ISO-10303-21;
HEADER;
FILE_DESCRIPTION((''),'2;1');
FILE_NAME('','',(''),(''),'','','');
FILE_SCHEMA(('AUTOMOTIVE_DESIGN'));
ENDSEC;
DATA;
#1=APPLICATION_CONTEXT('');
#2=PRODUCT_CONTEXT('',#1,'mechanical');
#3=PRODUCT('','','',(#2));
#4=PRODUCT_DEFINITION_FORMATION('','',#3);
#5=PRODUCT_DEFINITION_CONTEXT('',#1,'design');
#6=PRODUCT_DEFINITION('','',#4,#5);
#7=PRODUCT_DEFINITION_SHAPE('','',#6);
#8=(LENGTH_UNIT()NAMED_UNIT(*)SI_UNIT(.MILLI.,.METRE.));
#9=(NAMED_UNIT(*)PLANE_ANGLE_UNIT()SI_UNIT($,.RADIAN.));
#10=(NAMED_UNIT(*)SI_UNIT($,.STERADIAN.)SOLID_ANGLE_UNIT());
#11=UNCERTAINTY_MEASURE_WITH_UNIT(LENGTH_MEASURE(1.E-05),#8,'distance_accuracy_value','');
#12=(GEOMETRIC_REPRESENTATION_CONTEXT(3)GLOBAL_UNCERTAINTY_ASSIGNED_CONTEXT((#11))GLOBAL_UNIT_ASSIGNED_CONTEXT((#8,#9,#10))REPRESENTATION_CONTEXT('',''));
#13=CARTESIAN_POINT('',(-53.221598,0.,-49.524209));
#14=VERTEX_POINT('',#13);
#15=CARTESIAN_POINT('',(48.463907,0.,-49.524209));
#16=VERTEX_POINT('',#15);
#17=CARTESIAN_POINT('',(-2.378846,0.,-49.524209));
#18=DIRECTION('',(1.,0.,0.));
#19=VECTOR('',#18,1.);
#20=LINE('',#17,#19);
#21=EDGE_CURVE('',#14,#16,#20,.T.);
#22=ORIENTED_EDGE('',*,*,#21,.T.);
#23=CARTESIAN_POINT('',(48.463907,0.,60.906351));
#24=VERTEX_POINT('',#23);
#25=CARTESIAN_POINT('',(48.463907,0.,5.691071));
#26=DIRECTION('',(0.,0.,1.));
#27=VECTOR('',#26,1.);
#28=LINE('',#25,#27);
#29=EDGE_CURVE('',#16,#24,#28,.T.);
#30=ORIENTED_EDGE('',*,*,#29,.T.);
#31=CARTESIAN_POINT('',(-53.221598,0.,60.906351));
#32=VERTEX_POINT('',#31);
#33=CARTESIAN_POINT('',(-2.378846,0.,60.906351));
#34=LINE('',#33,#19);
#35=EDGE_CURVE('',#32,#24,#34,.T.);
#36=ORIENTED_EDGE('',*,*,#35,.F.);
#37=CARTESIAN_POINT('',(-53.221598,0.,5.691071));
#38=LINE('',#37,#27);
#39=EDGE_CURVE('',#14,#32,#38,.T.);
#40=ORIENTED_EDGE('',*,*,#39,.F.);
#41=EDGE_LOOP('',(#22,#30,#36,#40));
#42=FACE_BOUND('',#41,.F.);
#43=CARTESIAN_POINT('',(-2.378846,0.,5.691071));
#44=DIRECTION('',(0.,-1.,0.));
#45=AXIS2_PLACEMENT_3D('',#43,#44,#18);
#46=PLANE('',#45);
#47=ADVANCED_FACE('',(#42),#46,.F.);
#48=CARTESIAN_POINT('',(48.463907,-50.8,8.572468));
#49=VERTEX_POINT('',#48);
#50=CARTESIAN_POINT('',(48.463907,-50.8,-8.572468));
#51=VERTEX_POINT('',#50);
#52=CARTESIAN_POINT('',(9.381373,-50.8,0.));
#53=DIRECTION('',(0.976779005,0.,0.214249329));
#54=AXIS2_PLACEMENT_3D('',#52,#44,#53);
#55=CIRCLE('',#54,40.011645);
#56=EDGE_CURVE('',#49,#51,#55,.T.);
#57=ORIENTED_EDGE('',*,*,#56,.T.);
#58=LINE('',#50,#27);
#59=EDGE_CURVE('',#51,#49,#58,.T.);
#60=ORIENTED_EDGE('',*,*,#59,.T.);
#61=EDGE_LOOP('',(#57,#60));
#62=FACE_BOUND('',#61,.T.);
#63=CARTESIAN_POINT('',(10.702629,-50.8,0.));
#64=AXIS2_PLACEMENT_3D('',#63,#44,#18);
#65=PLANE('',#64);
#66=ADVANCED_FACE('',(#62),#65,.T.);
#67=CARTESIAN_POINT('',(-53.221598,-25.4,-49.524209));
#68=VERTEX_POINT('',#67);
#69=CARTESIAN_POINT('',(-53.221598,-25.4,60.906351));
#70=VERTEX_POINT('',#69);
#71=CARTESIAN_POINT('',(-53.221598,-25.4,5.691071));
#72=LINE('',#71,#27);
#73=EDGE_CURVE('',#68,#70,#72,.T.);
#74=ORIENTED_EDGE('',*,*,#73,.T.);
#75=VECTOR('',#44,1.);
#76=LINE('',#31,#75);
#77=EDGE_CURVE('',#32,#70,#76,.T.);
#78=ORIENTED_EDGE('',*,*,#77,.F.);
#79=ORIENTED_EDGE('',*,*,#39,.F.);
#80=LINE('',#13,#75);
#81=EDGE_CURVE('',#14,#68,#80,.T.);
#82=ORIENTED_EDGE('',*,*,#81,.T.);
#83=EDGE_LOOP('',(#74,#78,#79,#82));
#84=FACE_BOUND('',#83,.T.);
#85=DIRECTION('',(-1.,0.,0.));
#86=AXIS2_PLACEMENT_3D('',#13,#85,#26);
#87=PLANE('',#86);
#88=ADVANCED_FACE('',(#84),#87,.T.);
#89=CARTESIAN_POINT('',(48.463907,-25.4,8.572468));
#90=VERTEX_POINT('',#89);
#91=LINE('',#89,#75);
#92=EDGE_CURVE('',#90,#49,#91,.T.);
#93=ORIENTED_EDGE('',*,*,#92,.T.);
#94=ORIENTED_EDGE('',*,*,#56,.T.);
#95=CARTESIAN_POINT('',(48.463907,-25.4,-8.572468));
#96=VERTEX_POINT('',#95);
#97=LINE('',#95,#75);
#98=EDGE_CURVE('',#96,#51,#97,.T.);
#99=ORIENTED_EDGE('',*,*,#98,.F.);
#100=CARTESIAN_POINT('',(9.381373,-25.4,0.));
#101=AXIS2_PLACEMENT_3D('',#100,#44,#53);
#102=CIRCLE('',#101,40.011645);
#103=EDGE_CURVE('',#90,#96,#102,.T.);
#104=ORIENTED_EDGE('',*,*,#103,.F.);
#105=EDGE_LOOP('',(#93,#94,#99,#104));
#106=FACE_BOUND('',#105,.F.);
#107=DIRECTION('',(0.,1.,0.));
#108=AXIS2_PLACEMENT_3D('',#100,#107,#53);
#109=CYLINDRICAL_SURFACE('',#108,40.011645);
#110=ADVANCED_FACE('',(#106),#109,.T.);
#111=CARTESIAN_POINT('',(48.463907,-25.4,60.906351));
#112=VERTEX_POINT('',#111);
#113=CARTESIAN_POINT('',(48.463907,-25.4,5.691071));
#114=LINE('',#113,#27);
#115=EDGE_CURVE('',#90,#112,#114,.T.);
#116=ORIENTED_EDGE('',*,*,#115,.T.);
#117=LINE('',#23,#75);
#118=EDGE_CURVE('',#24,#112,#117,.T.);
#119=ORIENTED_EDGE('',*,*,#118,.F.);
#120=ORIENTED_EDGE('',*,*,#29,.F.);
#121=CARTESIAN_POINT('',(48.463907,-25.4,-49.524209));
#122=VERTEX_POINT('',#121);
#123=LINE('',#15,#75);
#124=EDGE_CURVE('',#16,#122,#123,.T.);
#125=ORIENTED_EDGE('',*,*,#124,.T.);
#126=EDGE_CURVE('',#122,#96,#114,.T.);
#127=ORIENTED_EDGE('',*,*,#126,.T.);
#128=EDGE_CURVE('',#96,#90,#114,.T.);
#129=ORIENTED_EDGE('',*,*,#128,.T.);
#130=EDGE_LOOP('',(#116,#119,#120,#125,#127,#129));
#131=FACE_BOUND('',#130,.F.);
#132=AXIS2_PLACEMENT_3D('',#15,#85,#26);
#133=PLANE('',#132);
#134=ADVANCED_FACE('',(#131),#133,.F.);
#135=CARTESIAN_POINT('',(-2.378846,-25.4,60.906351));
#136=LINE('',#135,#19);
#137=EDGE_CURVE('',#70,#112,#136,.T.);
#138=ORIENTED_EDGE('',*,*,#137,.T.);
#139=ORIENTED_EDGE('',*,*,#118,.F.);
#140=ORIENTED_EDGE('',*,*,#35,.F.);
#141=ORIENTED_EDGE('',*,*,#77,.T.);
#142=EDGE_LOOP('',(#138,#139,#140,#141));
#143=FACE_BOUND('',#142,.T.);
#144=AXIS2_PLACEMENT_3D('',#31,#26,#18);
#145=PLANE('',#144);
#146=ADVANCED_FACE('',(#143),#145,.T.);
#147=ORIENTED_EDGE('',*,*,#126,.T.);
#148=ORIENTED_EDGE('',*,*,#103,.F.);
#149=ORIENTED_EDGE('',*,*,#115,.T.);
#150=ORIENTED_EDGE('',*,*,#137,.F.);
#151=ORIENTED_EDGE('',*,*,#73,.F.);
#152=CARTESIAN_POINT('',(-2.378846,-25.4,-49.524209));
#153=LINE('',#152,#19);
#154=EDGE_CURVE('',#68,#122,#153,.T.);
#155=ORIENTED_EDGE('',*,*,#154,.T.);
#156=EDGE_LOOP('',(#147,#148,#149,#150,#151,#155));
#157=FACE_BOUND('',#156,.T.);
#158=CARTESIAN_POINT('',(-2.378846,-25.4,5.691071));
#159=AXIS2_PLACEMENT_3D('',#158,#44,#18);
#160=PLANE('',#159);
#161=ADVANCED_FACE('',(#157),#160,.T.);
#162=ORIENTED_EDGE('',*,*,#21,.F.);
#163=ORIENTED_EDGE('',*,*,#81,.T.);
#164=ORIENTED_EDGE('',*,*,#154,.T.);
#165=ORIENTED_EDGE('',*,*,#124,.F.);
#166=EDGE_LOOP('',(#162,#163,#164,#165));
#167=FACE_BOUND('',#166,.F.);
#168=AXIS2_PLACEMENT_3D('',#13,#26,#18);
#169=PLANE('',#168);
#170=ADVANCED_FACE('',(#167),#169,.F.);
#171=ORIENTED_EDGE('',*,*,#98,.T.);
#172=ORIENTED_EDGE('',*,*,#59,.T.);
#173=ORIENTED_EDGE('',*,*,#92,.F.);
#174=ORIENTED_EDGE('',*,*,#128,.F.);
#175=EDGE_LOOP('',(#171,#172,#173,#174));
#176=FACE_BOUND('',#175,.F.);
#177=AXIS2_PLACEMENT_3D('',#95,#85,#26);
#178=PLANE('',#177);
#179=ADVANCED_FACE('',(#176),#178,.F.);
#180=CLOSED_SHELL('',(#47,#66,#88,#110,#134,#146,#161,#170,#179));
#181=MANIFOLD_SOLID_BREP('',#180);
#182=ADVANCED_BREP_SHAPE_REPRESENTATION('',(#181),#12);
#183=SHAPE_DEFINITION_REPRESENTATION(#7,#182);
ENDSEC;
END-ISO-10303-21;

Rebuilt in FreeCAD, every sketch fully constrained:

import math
import FreeCAD as App
import Part
import Sketcher
from FreeCAD import Vector


def add_polygon(sketch, points):
    """Adds a closed chain of lines whose ends are joined by coincident constraints."""
    first, n = sketch.GeometryCount, len(points)
    for a, b in zip(points, points[1:] + points[:1]):
        sketch.addGeometry(Part.LineSegment(App.Vector(*a, 0), App.Vector(*b, 0)), False)
    for i in range(n):
        sketch.addConstraint(Sketcher.Constraint("Coincident", first + i, 2, first + (i + 1) % n, 1))

doc = App.newDocument("Part")
params = doc.addObject("Spreadsheet::Sheet", "Params")
for row, (alias, value) in enumerate([
    ("pad1_length", "1 in"),
    ("pad2_length", "1 in"),
], start=1):
    params.set(f"A{row}", alias)
    params.set(f"B{row}", "=" + value)
    params.setAlias(f"B{row}", alias)

body = doc.addObject("PartDesign::Body", "Body")

# Sketch on XZ plane
sketch1 = doc.addObject("Sketcher::SketchObject", "Sketch")
body.addObject(sketch1)
sketch1.AttachmentSupport = (doc.XZ_Plane, [""])
sketch1.MapMode = "FlatFace"
add_polygon(sketch1, [(-53, 61), (-53, -50), (48, -50), (48, 61)])  # lines 0-3
sketch1.addConstraint(Sketcher.Constraint("Vertical", 0))
sketch1.addConstraint(Sketcher.Constraint("Horizontal", 1))
sketch1.addConstraint(Sketcher.Constraint("Vertical", 2))
sketch1.addConstraint(Sketcher.Constraint("Horizontal", 3))
sketch1.addConstraint(Sketcher.Constraint("DistanceY", 0, 2, 0, 1, 110.430561))
sketch1.addConstraint(Sketcher.Constraint("DistanceX", 0, 2, -1, 1, 53.221598))
sketch1.addConstraint(Sketcher.Constraint("DistanceX", 1, 1, 1, 2, 101.685505))
sketch1.addConstraint(Sketcher.Constraint("DistanceY", 0, 2, -1, 1, 49.524209))
pad1 = doc.addObject("PartDesign::Pad", "Pad")
body.addObject(pad1)
pad1.Profile = sketch1
pad1.setExpression("Length", "Params.pad1_length")

# Sketch on XZ plane
sketch2 = doc.addObject("Sketcher::SketchObject", "Sketch001")
body.addObject(sketch2)
sketch2.AttachmentSupport = (doc.XZ_Plane, [""])
sketch2.MapMode = "FlatFace"
sketch2.AttachmentOffset = App.Placement(Vector(0, 0, 1 * 25.4), App.Rotation())
sketch2.addGeometry(Part.LineSegment(Vector(48, -9, 0), Vector(48, 9, 0)), False)
sketch2.addGeometry(Part.ArcOfCircle(Part.Circle(Vector(9, 0, 0), Vector(0, 0, 1), 40), math.radians(12), math.radians(348)), False)
sketch2.addConstraint(Sketcher.Constraint("Coincident", 0, 1, 1, 2))
sketch2.addConstraint(Sketcher.Constraint("Coincident", 1, 1, 0, 2))
sketch2.addConstraint(Sketcher.Constraint("Vertical", 0))
sketch2.addConstraint(Sketcher.Constraint("PointOnObject", 1, 3, -1))
sketch2.addConstraint(Sketcher.Constraint("Radius", 1, 40.011645))
sketch2.addConstraint(Sketcher.Constraint("DistanceY", 0, 1, 0, 2, 17.144936))
sketch2.addConstraint(Sketcher.Constraint("DistanceX", -1, 1, 1, 3, 9.381373))
pad2 = doc.addObject("PartDesign::Pad", "Pad001")
body.addObject(pad2)
pad2.Profile = sketch2
pad2.setExpression("Length", "Params.pad2_length")

doc.recompute()
